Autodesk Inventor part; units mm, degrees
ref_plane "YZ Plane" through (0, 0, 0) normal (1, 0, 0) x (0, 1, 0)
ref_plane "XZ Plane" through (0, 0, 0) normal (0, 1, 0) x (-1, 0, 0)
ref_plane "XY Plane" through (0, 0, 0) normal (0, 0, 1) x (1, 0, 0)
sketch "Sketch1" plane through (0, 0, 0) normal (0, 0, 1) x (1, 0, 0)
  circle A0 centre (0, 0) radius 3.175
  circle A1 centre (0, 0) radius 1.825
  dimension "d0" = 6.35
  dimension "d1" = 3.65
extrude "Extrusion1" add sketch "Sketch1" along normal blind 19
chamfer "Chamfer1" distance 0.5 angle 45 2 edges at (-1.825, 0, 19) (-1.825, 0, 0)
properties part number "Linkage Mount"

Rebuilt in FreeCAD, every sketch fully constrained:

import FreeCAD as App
import Part
import Sketcher
from FreeCAD import Vector
Q = App.Units.Quantity


def edges_at(feature, points):
    """Names of the edges that pass closest to the given points."""
    edges = feature.Shape.Edges
    near = lambda p: min(range(len(edges)), key=lambda i: edges[i].distToShape(Part.Vertex(*p))[0])
    return sorted({f"Edge{near(p) + 1}" for p in points})

doc = App.newDocument("Part")
body = doc.addObject("PartDesign::Body", "Body")

# Sketch on XY plane
sketch1 = body.newObject("Sketcher::SketchObject", "Sketch")
sketch1.AttachmentSupport = (doc.getObject("XY_Plane"), [""])
sketch1.MapMode = "FlatFace"
sketch1.addGeometry([
    Part.Circle(Vector(0, 0, 0), Vector(0, 0, 1), 3.2),
    Part.Circle(Vector(0, 0, 0), Vector(0, 0, 1), 1.8),
], False)
sketch1.addConstraint([
    Sketcher.Constraint("Coincident", 0, 3, -1, 1),
    Sketcher.Constraint("Coincident", 1, 3, -1, 1),
    Sketcher.Constraint("Diameter", 0, Q("6.35 mm")),
    Sketcher.Constraint("Diameter", 1, Q("3.65 mm")),
])
pad1 = body.newObject("PartDesign::Pad", "Pad")
pad1.Profile = sketch1
pad1.Length = 19
doc.recompute()

chamfer = body.newObject("PartDesign::Chamfer", "Chamfer")
chamfer.Base = (pad1, edges_at(pad1, [(-1.825, 0, 19), (-1.825, 0, 0)]))
chamfer.Size = 0.5

doc.recompute()
